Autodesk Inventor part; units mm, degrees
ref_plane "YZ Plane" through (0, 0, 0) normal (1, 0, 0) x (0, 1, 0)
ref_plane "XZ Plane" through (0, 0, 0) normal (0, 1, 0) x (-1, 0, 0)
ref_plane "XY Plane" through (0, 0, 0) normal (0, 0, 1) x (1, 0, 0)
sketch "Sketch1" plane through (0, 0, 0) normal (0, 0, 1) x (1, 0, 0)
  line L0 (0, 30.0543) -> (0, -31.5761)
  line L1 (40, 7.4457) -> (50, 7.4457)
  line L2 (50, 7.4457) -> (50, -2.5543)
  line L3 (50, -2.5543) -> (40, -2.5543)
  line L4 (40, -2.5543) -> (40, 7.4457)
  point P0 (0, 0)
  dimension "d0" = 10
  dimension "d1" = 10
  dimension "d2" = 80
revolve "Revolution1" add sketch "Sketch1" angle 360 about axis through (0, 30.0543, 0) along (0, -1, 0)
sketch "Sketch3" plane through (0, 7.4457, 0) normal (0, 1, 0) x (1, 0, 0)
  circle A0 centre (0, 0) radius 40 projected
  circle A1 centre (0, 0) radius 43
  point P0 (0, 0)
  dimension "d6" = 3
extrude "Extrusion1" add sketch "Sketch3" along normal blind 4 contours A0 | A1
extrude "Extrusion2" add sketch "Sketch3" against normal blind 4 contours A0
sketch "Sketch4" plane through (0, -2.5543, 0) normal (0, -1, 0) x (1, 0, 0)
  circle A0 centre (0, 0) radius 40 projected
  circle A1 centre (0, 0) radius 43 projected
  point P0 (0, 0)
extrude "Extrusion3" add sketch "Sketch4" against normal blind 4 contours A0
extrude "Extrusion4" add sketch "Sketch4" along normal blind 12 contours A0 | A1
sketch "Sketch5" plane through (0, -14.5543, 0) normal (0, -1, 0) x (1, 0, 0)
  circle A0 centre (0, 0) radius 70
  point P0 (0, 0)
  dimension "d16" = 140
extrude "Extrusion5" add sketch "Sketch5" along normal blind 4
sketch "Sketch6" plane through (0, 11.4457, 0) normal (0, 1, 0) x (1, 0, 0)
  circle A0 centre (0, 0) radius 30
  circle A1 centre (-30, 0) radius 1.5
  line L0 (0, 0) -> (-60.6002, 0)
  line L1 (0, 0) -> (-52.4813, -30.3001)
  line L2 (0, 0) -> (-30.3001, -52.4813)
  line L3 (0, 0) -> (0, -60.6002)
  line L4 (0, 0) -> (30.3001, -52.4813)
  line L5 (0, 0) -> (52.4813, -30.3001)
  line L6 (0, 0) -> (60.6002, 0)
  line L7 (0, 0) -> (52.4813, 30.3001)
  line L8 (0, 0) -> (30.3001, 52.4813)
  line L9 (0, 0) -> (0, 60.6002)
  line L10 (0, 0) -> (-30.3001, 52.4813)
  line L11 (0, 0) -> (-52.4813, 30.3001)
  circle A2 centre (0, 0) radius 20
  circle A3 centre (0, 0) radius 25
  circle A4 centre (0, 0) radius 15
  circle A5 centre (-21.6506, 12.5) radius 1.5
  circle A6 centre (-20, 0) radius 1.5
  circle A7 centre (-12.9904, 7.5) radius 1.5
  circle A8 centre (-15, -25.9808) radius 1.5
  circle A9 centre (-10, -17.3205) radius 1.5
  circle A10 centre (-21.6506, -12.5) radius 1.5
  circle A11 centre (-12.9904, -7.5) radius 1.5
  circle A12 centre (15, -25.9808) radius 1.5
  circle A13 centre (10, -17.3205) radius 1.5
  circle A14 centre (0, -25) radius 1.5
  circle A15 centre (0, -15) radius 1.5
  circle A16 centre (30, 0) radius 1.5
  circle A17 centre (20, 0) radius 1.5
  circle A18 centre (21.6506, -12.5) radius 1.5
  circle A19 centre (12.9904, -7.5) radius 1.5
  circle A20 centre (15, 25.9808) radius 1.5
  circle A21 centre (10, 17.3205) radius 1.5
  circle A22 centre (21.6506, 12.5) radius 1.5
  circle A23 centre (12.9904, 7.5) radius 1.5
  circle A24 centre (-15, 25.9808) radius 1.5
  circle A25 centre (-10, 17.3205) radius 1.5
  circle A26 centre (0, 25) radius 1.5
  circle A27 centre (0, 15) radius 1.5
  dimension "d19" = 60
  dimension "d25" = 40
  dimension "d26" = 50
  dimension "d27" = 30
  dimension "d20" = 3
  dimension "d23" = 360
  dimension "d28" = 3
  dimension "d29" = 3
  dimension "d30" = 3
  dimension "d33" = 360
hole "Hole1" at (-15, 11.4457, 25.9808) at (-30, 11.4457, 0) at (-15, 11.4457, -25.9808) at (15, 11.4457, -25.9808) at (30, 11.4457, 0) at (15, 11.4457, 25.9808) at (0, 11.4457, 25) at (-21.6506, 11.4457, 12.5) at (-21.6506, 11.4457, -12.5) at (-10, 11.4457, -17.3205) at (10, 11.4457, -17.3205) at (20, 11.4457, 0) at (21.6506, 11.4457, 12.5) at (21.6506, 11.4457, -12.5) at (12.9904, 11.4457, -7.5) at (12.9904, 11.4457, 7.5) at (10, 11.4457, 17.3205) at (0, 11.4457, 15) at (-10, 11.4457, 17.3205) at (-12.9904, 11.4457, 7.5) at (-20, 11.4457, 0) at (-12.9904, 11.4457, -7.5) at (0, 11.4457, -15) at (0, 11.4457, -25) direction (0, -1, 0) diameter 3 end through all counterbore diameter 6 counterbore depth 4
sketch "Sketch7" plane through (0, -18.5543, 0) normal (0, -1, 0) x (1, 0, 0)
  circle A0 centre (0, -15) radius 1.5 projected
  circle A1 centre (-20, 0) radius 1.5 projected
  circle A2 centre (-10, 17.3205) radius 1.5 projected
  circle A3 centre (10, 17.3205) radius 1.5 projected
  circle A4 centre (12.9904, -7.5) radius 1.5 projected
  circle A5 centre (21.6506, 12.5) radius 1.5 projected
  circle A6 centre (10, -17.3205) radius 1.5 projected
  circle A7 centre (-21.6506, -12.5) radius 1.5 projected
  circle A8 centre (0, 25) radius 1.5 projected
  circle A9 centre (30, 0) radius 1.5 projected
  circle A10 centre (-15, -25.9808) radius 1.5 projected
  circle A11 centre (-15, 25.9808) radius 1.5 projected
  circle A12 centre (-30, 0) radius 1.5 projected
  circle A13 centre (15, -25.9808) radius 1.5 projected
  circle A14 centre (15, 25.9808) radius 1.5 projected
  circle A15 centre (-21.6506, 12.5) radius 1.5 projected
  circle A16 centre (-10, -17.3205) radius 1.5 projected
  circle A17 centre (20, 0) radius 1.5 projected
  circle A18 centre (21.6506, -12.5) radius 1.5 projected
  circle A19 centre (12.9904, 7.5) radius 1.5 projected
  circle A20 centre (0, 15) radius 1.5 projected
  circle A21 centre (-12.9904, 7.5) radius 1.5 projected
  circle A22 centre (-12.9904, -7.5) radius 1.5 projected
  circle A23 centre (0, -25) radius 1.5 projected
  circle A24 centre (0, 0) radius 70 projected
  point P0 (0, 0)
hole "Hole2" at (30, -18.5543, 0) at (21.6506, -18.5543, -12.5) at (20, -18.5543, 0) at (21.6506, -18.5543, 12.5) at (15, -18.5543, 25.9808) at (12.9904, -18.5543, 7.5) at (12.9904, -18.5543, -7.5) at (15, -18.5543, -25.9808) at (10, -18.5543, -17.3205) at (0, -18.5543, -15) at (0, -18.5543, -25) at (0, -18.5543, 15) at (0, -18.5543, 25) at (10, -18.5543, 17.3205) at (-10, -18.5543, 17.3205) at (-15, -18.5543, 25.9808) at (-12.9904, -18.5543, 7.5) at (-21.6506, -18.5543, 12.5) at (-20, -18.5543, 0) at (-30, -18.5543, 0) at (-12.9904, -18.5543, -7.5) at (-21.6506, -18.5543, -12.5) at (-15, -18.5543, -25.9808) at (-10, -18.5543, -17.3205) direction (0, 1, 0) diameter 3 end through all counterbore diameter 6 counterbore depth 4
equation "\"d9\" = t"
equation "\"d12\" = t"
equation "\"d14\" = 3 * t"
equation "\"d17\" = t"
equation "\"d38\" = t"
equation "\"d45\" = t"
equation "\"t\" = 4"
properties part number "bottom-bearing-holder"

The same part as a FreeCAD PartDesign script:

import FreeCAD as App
import Part
import Sketcher


def add_polygon(sketch, points):
    """Adds a closed chain of lines whose ends are joined by coincident constraints."""
    first, n = sketch.GeometryCount, len(points)
    for a, b in zip(points, points[1:] + points[:1]):
        sketch.addGeometry(Part.LineSegment(App.Vector(*a, 0), App.Vector(*b, 0)), False)
    for i in range(n):
        sketch.addConstraint(Sketcher.Constraint("Coincident", first + i, 2, first + (i + 1) % n, 1))

doc = App.newDocument("Part")
body = doc.addObject("PartDesign::Body", "Body")

# Sketch on XY plane
sketch1 = body.newObject("Sketcher::SketchObject", "Sketch")
sketch1.AttachmentSupport = (doc.getObject("XY_Plane"), [""])
sketch1.MapMode = "FlatFace"
add_polygon(sketch1, [(50, 7), (40, 7), (40, -3), (50, -3)])  # lines 0-3
sketch1.addConstraint(Sketcher.Constraint("Horizontal", 0))
sketch1.addConstraint(Sketcher.Constraint("Vertical", 1))
sketch1.addConstraint(Sketcher.Constraint("Horizontal", 2))
sketch1.addConstraint(Sketcher.Constraint("Vertical", 3))
sketch1.addConstraint(Sketcher.Constraint("Equal", 2, 1))
sketch1.addConstraint(Sketcher.Constraint("DistanceX", 0, 2, 0, 1, 10.0))
sketch1.addConstraint(Sketcher.Constraint("DistanceX", -1, 1, 0, 2, 40.0))
sketch1.addConstraint(Sketcher.Constraint("DistanceY", -1, 1, 0, 2, 7.4457))
revolution = body.newObject("PartDesign::Revolution", "Revolution")
revolution.Profile = sketch1
revolution.ReferenceAxis = (sketch1, ["V_Axis"])
revolution.Angle = 360

# Sketch on XZ plane
sketch2 = body.newObject("Sketcher::SketchObject", "Sketch001")
sketch2.AttachmentSupport = (doc.getObject("XZ_Plane"), [""])
sketch2.MapMode = "FlatFace"
sketch2.AttachmentOffset = App.Placement(App.Vector(0, 0, -7.4457), App.Rotation())
sketch2.addGeometry(Part.Circle(App.Vector(0, 0, 0), App.Vector(0, 0, 1), 43), False)
sketch2.addConstraint(Sketcher.Constraint("Coincident", 0, 3, -1, 1))
sketch2.addConstraint(Sketcher.Constraint("Diameter", 0, 86.0))
pad1 = body.newObject("PartDesign::Pad", "Pad")
pad1.Profile = sketch2
pad1.Length = 4
pad1.Reversed = True

# Sketch on XZ plane
sketch3 = body.newObject("Sketcher::SketchObject", "Sketch002")
sketch3.AttachmentSupport = (doc.getObject("XZ_Plane"), [""])
sketch3.MapMode = "FlatFace"
sketch3.AttachmentOffset = App.Placement(App.Vector(0, 0, -7.4457), App.Rotation())
sketch3.addGeometry(Part.Circle(App.Vector(0, 0, 0), App.Vector(0, 0, 1), 40), False)
sketch3.addConstraint(Sketcher.Constraint("Coincident", 0, 3, -1, 1))
sketch3.addConstraint(Sketcher.Constraint("Diameter", 0, 80.0))
pad2 = body.newObject("PartDesign::Pad", "Pad001")
pad2.Profile = sketch3
pad2.Length = 4

# Sketch on XZ plane
sketch4 = body.newObject("Sketcher::SketchObject", "Sketch003")
sketch4.AttachmentSupport = (doc.getObject("XZ_Plane"), [""])
sketch4.MapMode = "FlatFace"
sketch4.AttachmentOffset = App.Placement(App.Vector(0, 0, 2.5543), App.Rotation())
sketch4.addGeometry(Part.Circle(App.Vector(0, 0, 0), App.Vector(0, 0, 1), 40), False)
sketch4.addConstraint(Sketcher.Constraint("Coincident", 0, 3, -1, 1))
sketch4.addConstraint(Sketcher.Constraint("Diameter", 0, 80.0))
pad3 = body.newObject("PartDesign::Pad", "Pad002")
pad3.Profile = sketch4
pad3.Length = 4
pad3.Reversed = True

# Sketch on XZ plane
sketch5 = body.newObject("Sketcher::SketchObject", "Sketch004")
sketch5.AttachmentSupport = (doc.getObject("XZ_Plane"), [""])
sketch5.MapMode = "FlatFace"
sketch5.AttachmentOffset = App.Placement(App.Vector(0, 0, 2.5543), App.Rotation())
sketch5.addGeometry(Part.Circle(App.Vector(0, 0, 0), App.Vector(0, 0, 1), 43), False)
sketch5.addConstraint(Sketcher.Constraint("Coincident", 0, 3, -1, 1))
sketch5.addConstraint(Sketcher.Constraint("Diameter", 0, 86.0))
pad4 = body.newObject("PartDesign::Pad", "Pad003")
pad4.Profile = sketch5
pad4.Length = 12

# Sketch on XZ plane
sketch6 = body.newObject("Sketcher::SketchObject", "Sketch005")
sketch6.AttachmentSupport = (doc.getObject("XZ_Plane"), [""])
sketch6.MapMode = "FlatFace"
sketch6.AttachmentOffset = App.Placement(App.Vector(0, 0, 14.5543), App.Rotation())
sketch6.addGeometry(Part.Circle(App.Vector(0, 0, 0), App.Vector(0, 0, 1), 70), False)
sketch6.addConstraint(Sketcher.Constraint("Coincident", 0, 3, -1, 1))
sketch6.addConstraint(Sketcher.Constraint("Diameter", 0, 140.0))
pad5 = body.newObject("PartDesign::Pad", "Pad004")
pad5.Profile = sketch6
pad5.Length = 4

# Sketch on XZ plane
sketch7 = body.newObject("Sketcher::SketchObject", "Sketch006")
sketch7.AttachmentSupport = (doc.getObject("XZ_Plane"), [""])
sketch7.MapMode = "FlatFace"
sketch7.AttachmentOffset = App.Placement(App.Vector(0, 0, -11.4457), App.Rotation())
sketch7.addGeometry(Part.Circle(App.Vector(-15, 26, 0), App.Vector(0, 0, 1), 1.5), False)
sketch7.addGeometry(Part.Circle(App.Vector(-30, 0, 0), App.Vector(0, 0, 1), 1.5), False)
sketch7.addGeometry(Part.Circle(App.Vector(-15, -26, 0), App.Vector(0, 0, 1), 1.5), False)
sketch7.addGeometry(Part.Circle(App.Vector(15, -26, 0), App.Vector(0, 0, 1), 1.5), False)
sketch7.addGeometry(Part.Circle(App.Vector(30, 0, 0), App.Vector(0, 0, 1), 1.5), False)
sketch7.addGeometry(Part.Circle(App.Vector(15, 26, 0), App.Vector(0, 0, 1), 1.5), False)
sketch7.addGeometry(Part.Circle(App.Vector(0, 25, 0), App.Vector(0, 0, 1), 1.5), False)
sketch7.addGeometry(Part.Circle(App.Vector(-21.7, 12.5, 0), App.Vector(0, 0, 1), 1.5), False)
sketch7.addGeometry(Part.Circle(App.Vector(-21.7, -12.5, 0), App.Vector(0, 0, 1), 1.5), False)
sketch7.addGeometry(Part.Circle(App.Vector(-10, -17.3, 0), App.Vector(0, 0, 1), 1.5), False)
sketch7.addGeometry(Part.Circle(App.Vector(10, -17.3, 0), App.Vector(0, 0, 1), 1.5), False)
sketch7.addGeometry(Part.Circle(App.Vector(20, 0, 0), App.Vector(0, 0, 1), 1.5), False)
sketch7.addGeometry(Part.Circle(App.Vector(21.7, 12.5, 0), App.Vector(0, 0, 1), 1.5), False)
sketch7.addGeometry(Part.Circle(App.Vector(21.7, -12.5, 0), App.Vector(0, 0, 1), 1.5), False)
sketch7.addGeometry(Part.Circle(App.Vector(13, -7.5, 0), App.Vector(0, 0, 1), 1.5), False)
sketch7.addGeometry(Part.Circle(App.Vector(13, 7.5, 0), App.Vector(0, 0, 1), 1.5), False)
sketch7.addGeometry(Part.Circle(App.Vector(10, 17.3, 0), App.Vector(0, 0, 1), 1.5), False)
sketch7.addGeometry(Part.Circle(App.Vector(0, 15, 0), App.Vector(0, 0, 1), 1.5), False)
sketch7.addGeometry(Part.Circle(App.Vector(-10, 17.3, 0), App.Vector(0, 0, 1), 1.5), False)
sketch7.addGeometry(Part.Circle(App.Vector(-13, 7.5, 0), App.Vector(0, 0, 1), 1.5), False)
sketch7.addGeometry(Part.Circle(App.Vector(-20, 0, 0), App.Vector(0, 0, 1), 1.5), False)
sketch7.addGeometry(Part.Circle(App.Vector(-13, -7.5, 0), App.Vector(0, 0, 1), 1.5), False)
sketch7.addGeometry(Part.Circle(App.Vector(0, -15, 0), App.Vector(0, 0, 1), 1.5), False)
sketch7.addGeometry(Part.Circle(App.Vector(0, -25, 0), App.Vector(0, 0, 1), 1.5), False)
sketch7.addConstraint(Sketcher.Constraint("Equal", 0, 1))
sketch7.addConstraint(Sketcher.Constraint("Equal", 1, 2))
sketch7.addConstraint(Sketcher.Constraint("Equal", 2, 3))
sketch7.addConstraint(Sketcher.Constraint("Equal", 3, 4))
sketch7.addConstraint(Sketcher.Constraint("Equal", 4, 5))
sketch7.addConstraint(Sketcher.Constraint("Equal", 5, 6))
sketch7.addConstraint(Sketcher.Constraint("Equal", 6, 7))
sketch7.addConstraint(Sketcher.Constraint("Equal", 7, 8))
sketch7.addConstraint(Sketcher.Constraint("Equal", 8, 9))
sketch7.addConstraint(Sketcher.Constraint("Equal", 9, 10))
sketch7.addConstraint(Sketcher.Constraint("Equal", 10, 11))
sketch7.addConstraint(Sketcher.Constraint("Equal", 11, 12))
sketch7.addConstraint(Sketcher.Constraint("Equal", 12, 13))
sketch7.addConstraint(Sketcher.Constraint("Equal", 13, 14))
sketch7.addConstraint(Sketcher.Constraint("Equal", 14, 15))
sketch7.addConstraint(Sketcher.Constraint("Equal", 15, 16))
sketch7.addConstraint(Sketcher.Constraint("Equal", 16, 17))
sketch7.addConstraint(Sketcher.Constraint("Equal", 17, 18))
sketch7.addConstraint(Sketcher.Constraint("Equal", 18, 19))
sketch7.addConstraint(Sketcher.Constraint("Equal", 19, 20))
sketch7.addConstraint(Sketcher.Constraint("Equal", 20, 21))
sketch7.addConstraint(Sketcher.Constraint("Equal", 21, 22))
sketch7.addConstraint(Sketcher.Constraint("Equal", 22, 23))
sketch7.addConstraint(Sketcher.Constraint("Symmetric", 0, 3, 3, 3, -1, 1))
sketch7.addConstraint(Sketcher.Constraint("Symmetric", 1, 3, 4, 3, -1, 1))
sketch7.addConstraint(Sketcher.Constraint("Symmetric", 2, 3, 5, 3, -1, 1))
sketch7.addConstraint(Sketcher.Constraint("Symmetric", 8, 3, 12, 3, -1, 1))
sketch7.addConstraint(Sketcher.Constraint("Symmetric", 7, 3, 13, 3, -1, 1))
sketch7.addConstraint(Sketcher.Constraint("Symmetric", 9, 3, 16, 3, -1, 1))
sketch7.addConstraint(Sketcher.Constraint("Symmetric", 10, 3, 18, 3, -1, 1))
sketch7.addConstraint(Sketcher.Constraint("Symmetric", 14, 3, 19, 3, -1, 1))
sketch7.addConstraint(Sketcher.Constraint("Symmetric", 11, 3, 20, 3, -1, 1))
sketch7.addConstraint(Sketcher.Constraint("Symmetric", 15, 3, 21, 3, -1, 1))
sketch7.addConstraint(Sketcher.Constraint("Symmetric", 17, 3, 22, 3, -1, 1))
sketch7.addConstraint(Sketcher.Constraint("Symmetric", 6, 3, 23, 3, -1, 1))
sketch7.addConstraint(Sketcher.Constraint("Symmetric", 2, 3, 3, 3, -2))
sketch7.addConstraint(Sketcher.Constraint("Symmetric", 9, 3, 10, 3, -2))
sketch7.addConstraint(Sketcher.Constraint("Symmetric", 7, 3, 12, 3, -2))
sketch7.addConstraint(Sketcher.Constraint("Symmetric", 15, 3, 19, 3, -2))
sketch7.addConstraint(Sketcher.Constraint("PointOnObject", 1, 3, -1))
sketch7.addConstraint(Sketcher.Constraint("PointOnObject", 6, 3, -2))
sketch7.addConstraint(Sketcher.Constraint("PointOnObject", 11, 3, -1))
sketch7.addConstraint(Sketcher.Constraint("PointOnObject", 17, 3, -2))
sketch7.addConstraint(Sketcher.Constraint("Diameter", 0, 3.0))
sketch7.addConstraint(Sketcher.Constraint("DistanceX", 0, 3, -1, 1, 15.0))
sketch7.addConstraint(Sketcher.Constraint("DistanceX", 1, 3, -1, 1, 30.0))
sketch7.addConstraint(Sketcher.Constraint("DistanceY", -1, 1, 6, 3, 25.0))
sketch7.addConstraint(Sketcher.Constraint("DistanceX", 9, 3, -1, 1, 10.0))
sketch7.addConstraint(Sketcher.Constraint("DistanceX", -1, 1, 11, 3, 20.0))
sketch7.addConstraint(Sketcher.Constraint("DistanceY", -1, 1, 17, 3, 15.0))
sketch7.addConstraint(Sketcher.Constraint("DistanceY", 8, 3, 7, 3, 25.0))
sketch7.addConstraint(Sketcher.Constraint("DistanceY", 13, 3, 14, 3, 5.0))
sketch7.addConstraint(Sketcher.Constraint("DistanceY", -1, 1, 0, 3, 25.9808))
sketch7.addConstraint(Sketcher.Constraint("DistanceX", 7, 3, -1, 1, 21.6506))
sketch7.addConstraint(Sketcher.Constraint("DistanceY", 9, 3, -1, 1, 17.3205))
sketch7.addConstraint(Sketcher.Constraint("DistanceX", -1, 1, 14, 3, 12.9904))
doc.recompute()
hole = body.newObject("PartDesign::Hole", "Hole")
hole.Profile = sketch7
hole.ThreadType = "None"
hole.Diameter = 3
hole.DepthType = "ThroughAll"
hole.HoleCutType = "Counterbore"
hole.HoleCutDiameter = 6
hole.HoleCutDepth = 4
hole.Reversed = True

# Sketch on XZ plane
sketch8 = body.newObject("Sketcher::SketchObject", "Sketch007")
sketch8.AttachmentSupport = (doc.getObject("XZ_Plane"), [""])
sketch8.MapMode = "FlatFace"
sketch8.AttachmentOffset = App.Placement(App.Vector(0, 0, 18.5543), App.Rotation())
sketch8.addGeometry(Part.Circle(App.Vector(30, 0, 0), App.Vector(0, 0, 1), 1.5), False)
sketch8.addGeometry(Part.Circle(App.Vector(21.7, -12.5, 0), App.Vector(0, 0, 1), 1.5), False)
sketch8.addGeometry(Part.Circle(App.Vector(20, 0, 0), App.Vector(0, 0, 1), 1.5), False)
sketch8.addGeometry(Part.Circle(App.Vector(21.7, 12.5, 0), App.Vector(0, 0, 1), 1.5), False)
sketch8.addGeometry(Part.Circle(App.Vector(15, 26, 0), App.Vector(0, 0, 1), 1.5), False)
sketch8.addGeometry(Part.Circle(App.Vector(13, 7.5, 0), App.Vector(0, 0, 1), 1.5), False)
sketch8.addGeometry(Part.Circle(App.Vector(13, -7.5, 0), App.Vector(0, 0, 1), 1.5), False)
sketch8.addGeometry(Part.Circle(App.Vector(15, -26, 0), App.Vector(0, 0, 1), 1.5), False)
sketch8.addGeometry(Part.Circle(App.Vector(10, -17.3, 0), App.Vector(0, 0, 1), 1.5), False)
sketch8.addGeometry(Part.Circle(App.Vector(0, -15, 0), App.Vector(0, 0, 1), 1.5), False)
sketch8.addGeometry(Part.Circle(App.Vector(0, -25, 0), App.Vector(0, 0, 1), 1.5), False)
sketch8.addGeometry(Part.Circle(App.Vector(0, 15, 0), App.Vector(0, 0, 1), 1.5), False)
sketch8.addGeometry(Part.Circle(App.Vector(0, 25, 0), App.Vector(0, 0, 1), 1.5), False)
sketch8.addGeometry(Part.Circle(App.Vector(10, 17.3, 0), App.Vector(0, 0, 1), 1.5), False)
sketch8.addGeometry(Part.Circle(App.Vector(-10, 17.3, 0), App.Vector(0, 0, 1), 1.5), False)
sketch8.addGeometry(Part.Circle(App.Vector(-15, 26, 0), App.Vector(0, 0, 1), 1.5), False)
sketch8.addGeometry(Part.Circle(App.Vector(-13, 7.5, 0), App.Vector(0, 0, 1), 1.5), False)
sketch8.addGeometry(Part.Circle(App.Vector(-21.7, 12.5, 0), App.Vector(0, 0, 1), 1.5), False)
sketch8.addGeometry(Part.Circle(App.Vector(-20, 0, 0), App.Vector(0, 0, 1), 1.5), False)
sketch8.addGeometry(Part.Circle(App.Vector(-30, 0, 0), App.Vector(0, 0, 1), 1.5), False)
sketch8.addGeometry(Part.Circle(App.Vector(-13, -7.5, 0), App.Vector(0, 0, 1), 1.5), False)
sketch8.addGeometry(Part.Circle(App.Vector(-21.7, -12.5, 0), App.Vector(0, 0, 1), 1.5), False)
sketch8.addGeometry(Part.Circle(App.Vector(-15, -26, 0), App.Vector(0, 0, 1), 1.5), False)
sketch8.addGeometry(Part.Circle(App.Vector(-10, -17.3, 0), App.Vector(0, 0, 1), 1.5), False)
sketch8.addConstraint(Sketcher.Constraint("Equal", 0, 1))
sketch8.addConstraint(Sketcher.Constraint("Equal", 1, 2))
sketch8.addConstraint(Sketcher.Constraint("Equal", 2, 3))
sketch8.addConstraint(Sketcher.Constraint("Equal", 3, 4))
sketch8.addConstraint(Sketcher.Constraint("Equal", 4, 5))
sketch8.addConstraint(Sketcher.Constraint("Equal", 5, 6))
sketch8.addConstraint(Sketcher.Constraint("Equal", 6, 7))
sketch8.addConstraint(Sketcher.Constraint("Equal", 7, 8))
sketch8.addConstraint(Sketcher.Constraint("Equal", 8, 9))
sketch8.addConstraint(Sketcher.Constraint("Equal", 9, 10))
sketch8.addConstraint(Sketcher.Constraint("Equal", 10, 11))
sketch8.addConstraint(Sketcher.Constraint("Equal", 11, 12))
sketch8.addConstraint(Sketcher.Constraint("Equal", 12, 13))
sketch8.addConstraint(Sketcher.Constraint("Equal", 13, 14))
sketch8.addConstraint(Sketcher.Constraint("Equal", 14, 15))
sketch8.addConstraint(Sketcher.Constraint("Equal", 15, 16))
sketch8.addConstraint(Sketcher.Constraint("Equal", 16, 17))
sketch8.addConstraint(Sketcher.Constraint("Equal", 17, 18))
sketch8.addConstraint(Sketcher.Constraint("Equal", 18, 19))
sketch8.addConstraint(Sketcher.Constraint("Equal", 19, 20))
sketch8.addConstraint(Sketcher.Constraint("Equal", 20, 21))
sketch8.addConstraint(Sketcher.Constraint("Equal", 21, 22))
sketch8.addConstraint(Sketcher.Constraint("Equal", 22, 23))
sketch8.addConstraint(Sketcher.Constraint("Symmetric", 9, 3, 11, 3, -1, 1))
sketch8.addConstraint(Sketcher.Constraint("Symmetric", 10, 3, 12, 3, -1, 1))
sketch8.addConstraint(Sketcher.Constraint("Symmetric", 8, 3, 14, 3, -1, 1))
sketch8.addConstraint(Sketcher.Constraint("Symmetric", 7, 3, 15, 3, -1, 1))
sketch8.addConstraint(Sketcher.Constraint("Symmetric", 6, 3, 16, 3, -1, 1))
sketch8.addConstraint(Sketcher.Constraint("Symmetric", 1, 3, 17, 3, -1, 1))
sketch8.addConstraint(Sketcher.Constraint("Symmetric", 2, 3, 18, 3, -1, 1))
sketch8.addConstraint(Sketcher.Constraint("Symmetric", 0, 3, 19, 3, -1, 1))
sketch8.addConstraint(Sketcher.Constraint("Symmetric", 5, 3, 20, 3, -1, 1))
sketch8.addConstraint(Sketcher.Constraint("Symmetric", 3, 3, 21, 3, -1, 1))
sketch8.addConstraint(Sketcher.Constraint("Symmetric", 4, 3, 22, 3, -1, 1))
sketch8.addConstraint(Sketcher.Constraint("Symmetric", 13, 3, 23, 3, -1, 1))
sketch8.addConstraint(Sketcher.Constraint("Symmetric", 13, 3, 14, 3, -2))
sketch8.addConstraint(Sketcher.Constraint("Symmetric", 4, 3, 15, 3, -2))
sketch8.addConstraint(Sketcher.Constraint("Symmetric", 5, 3, 16, 3, -2))
sketch8.addConstraint(Sketcher.Constraint("Symmetric", 3, 3, 17, 3, -2))
sketch8.addConstraint(Sketcher.Constraint("PointOnObject", 0, 3, -1))
sketch8.addConstraint(Sketcher.Constraint("PointOnObject", 2, 3, -1))
sketch8.addConstraint(Sketcher.Constraint("PointOnObject", 9, 3, -2))
sketch8.addConstraint(Sketcher.Constraint("PointOnObject", 10, 3, -2))
sketch8.addConstraint(Sketcher.Constraint("Diameter", 0, 3.0))
sketch8.addConstraint(Sketcher.Constraint("DistanceX", -1, 1, 0, 3, 30.0))
sketch8.addConstraint(Sketcher.Constraint("DistanceX", -1, 1, 2, 3, 20.0))
sketch8.addConstraint(Sketcher.Constraint("DistanceX", -1, 1, 4, 3, 15.0))
sketch8.addConstraint(Sketcher.Constraint("DistanceX", -1, 1, 8, 3, 10.0))
sketch8.addConstraint(Sketcher.Constraint("DistanceY", 9, 3, -1, 1, 15.0))
sketch8.addConstraint(Sketcher.Constraint("DistanceY", 10, 3, -1, 1, 25.0))
sketch8.addConstraint(Sketcher.Constraint("DistanceY", 1, 3, 3, 3, 25.0))
sketch8.addConstraint(Sketcher.Constraint("DistanceY", 5, 3, 3, 3, 5.0))
sketch8.addConstraint(Sketcher.Constraint("DistanceX", -1, 1, 1, 3, 21.6506))
sketch8.addConstraint(Sketcher.Constraint("DistanceY", -1, 1, 4, 3, 25.9808))
sketch8.addConstraint(Sketcher.Constraint("DistanceX", -1, 1, 5, 3, 12.9904))
sketch8.addConstraint(Sketcher.Constraint("DistanceY", 8, 3, -1, 1, 17.3205))
doc.recompute()
hole2 = body.newObject("PartDesign::Hole", "Hole001")
hole2.Profile = sketch8
hole2.ThreadType = "None"
hole2.Diameter = 3
hole2.DepthType = "ThroughAll"
hole2.HoleCutType = "Counterbore"
hole2.HoleCutDiameter = 6
hole2.HoleCutDepth = 4

doc.recompute()
